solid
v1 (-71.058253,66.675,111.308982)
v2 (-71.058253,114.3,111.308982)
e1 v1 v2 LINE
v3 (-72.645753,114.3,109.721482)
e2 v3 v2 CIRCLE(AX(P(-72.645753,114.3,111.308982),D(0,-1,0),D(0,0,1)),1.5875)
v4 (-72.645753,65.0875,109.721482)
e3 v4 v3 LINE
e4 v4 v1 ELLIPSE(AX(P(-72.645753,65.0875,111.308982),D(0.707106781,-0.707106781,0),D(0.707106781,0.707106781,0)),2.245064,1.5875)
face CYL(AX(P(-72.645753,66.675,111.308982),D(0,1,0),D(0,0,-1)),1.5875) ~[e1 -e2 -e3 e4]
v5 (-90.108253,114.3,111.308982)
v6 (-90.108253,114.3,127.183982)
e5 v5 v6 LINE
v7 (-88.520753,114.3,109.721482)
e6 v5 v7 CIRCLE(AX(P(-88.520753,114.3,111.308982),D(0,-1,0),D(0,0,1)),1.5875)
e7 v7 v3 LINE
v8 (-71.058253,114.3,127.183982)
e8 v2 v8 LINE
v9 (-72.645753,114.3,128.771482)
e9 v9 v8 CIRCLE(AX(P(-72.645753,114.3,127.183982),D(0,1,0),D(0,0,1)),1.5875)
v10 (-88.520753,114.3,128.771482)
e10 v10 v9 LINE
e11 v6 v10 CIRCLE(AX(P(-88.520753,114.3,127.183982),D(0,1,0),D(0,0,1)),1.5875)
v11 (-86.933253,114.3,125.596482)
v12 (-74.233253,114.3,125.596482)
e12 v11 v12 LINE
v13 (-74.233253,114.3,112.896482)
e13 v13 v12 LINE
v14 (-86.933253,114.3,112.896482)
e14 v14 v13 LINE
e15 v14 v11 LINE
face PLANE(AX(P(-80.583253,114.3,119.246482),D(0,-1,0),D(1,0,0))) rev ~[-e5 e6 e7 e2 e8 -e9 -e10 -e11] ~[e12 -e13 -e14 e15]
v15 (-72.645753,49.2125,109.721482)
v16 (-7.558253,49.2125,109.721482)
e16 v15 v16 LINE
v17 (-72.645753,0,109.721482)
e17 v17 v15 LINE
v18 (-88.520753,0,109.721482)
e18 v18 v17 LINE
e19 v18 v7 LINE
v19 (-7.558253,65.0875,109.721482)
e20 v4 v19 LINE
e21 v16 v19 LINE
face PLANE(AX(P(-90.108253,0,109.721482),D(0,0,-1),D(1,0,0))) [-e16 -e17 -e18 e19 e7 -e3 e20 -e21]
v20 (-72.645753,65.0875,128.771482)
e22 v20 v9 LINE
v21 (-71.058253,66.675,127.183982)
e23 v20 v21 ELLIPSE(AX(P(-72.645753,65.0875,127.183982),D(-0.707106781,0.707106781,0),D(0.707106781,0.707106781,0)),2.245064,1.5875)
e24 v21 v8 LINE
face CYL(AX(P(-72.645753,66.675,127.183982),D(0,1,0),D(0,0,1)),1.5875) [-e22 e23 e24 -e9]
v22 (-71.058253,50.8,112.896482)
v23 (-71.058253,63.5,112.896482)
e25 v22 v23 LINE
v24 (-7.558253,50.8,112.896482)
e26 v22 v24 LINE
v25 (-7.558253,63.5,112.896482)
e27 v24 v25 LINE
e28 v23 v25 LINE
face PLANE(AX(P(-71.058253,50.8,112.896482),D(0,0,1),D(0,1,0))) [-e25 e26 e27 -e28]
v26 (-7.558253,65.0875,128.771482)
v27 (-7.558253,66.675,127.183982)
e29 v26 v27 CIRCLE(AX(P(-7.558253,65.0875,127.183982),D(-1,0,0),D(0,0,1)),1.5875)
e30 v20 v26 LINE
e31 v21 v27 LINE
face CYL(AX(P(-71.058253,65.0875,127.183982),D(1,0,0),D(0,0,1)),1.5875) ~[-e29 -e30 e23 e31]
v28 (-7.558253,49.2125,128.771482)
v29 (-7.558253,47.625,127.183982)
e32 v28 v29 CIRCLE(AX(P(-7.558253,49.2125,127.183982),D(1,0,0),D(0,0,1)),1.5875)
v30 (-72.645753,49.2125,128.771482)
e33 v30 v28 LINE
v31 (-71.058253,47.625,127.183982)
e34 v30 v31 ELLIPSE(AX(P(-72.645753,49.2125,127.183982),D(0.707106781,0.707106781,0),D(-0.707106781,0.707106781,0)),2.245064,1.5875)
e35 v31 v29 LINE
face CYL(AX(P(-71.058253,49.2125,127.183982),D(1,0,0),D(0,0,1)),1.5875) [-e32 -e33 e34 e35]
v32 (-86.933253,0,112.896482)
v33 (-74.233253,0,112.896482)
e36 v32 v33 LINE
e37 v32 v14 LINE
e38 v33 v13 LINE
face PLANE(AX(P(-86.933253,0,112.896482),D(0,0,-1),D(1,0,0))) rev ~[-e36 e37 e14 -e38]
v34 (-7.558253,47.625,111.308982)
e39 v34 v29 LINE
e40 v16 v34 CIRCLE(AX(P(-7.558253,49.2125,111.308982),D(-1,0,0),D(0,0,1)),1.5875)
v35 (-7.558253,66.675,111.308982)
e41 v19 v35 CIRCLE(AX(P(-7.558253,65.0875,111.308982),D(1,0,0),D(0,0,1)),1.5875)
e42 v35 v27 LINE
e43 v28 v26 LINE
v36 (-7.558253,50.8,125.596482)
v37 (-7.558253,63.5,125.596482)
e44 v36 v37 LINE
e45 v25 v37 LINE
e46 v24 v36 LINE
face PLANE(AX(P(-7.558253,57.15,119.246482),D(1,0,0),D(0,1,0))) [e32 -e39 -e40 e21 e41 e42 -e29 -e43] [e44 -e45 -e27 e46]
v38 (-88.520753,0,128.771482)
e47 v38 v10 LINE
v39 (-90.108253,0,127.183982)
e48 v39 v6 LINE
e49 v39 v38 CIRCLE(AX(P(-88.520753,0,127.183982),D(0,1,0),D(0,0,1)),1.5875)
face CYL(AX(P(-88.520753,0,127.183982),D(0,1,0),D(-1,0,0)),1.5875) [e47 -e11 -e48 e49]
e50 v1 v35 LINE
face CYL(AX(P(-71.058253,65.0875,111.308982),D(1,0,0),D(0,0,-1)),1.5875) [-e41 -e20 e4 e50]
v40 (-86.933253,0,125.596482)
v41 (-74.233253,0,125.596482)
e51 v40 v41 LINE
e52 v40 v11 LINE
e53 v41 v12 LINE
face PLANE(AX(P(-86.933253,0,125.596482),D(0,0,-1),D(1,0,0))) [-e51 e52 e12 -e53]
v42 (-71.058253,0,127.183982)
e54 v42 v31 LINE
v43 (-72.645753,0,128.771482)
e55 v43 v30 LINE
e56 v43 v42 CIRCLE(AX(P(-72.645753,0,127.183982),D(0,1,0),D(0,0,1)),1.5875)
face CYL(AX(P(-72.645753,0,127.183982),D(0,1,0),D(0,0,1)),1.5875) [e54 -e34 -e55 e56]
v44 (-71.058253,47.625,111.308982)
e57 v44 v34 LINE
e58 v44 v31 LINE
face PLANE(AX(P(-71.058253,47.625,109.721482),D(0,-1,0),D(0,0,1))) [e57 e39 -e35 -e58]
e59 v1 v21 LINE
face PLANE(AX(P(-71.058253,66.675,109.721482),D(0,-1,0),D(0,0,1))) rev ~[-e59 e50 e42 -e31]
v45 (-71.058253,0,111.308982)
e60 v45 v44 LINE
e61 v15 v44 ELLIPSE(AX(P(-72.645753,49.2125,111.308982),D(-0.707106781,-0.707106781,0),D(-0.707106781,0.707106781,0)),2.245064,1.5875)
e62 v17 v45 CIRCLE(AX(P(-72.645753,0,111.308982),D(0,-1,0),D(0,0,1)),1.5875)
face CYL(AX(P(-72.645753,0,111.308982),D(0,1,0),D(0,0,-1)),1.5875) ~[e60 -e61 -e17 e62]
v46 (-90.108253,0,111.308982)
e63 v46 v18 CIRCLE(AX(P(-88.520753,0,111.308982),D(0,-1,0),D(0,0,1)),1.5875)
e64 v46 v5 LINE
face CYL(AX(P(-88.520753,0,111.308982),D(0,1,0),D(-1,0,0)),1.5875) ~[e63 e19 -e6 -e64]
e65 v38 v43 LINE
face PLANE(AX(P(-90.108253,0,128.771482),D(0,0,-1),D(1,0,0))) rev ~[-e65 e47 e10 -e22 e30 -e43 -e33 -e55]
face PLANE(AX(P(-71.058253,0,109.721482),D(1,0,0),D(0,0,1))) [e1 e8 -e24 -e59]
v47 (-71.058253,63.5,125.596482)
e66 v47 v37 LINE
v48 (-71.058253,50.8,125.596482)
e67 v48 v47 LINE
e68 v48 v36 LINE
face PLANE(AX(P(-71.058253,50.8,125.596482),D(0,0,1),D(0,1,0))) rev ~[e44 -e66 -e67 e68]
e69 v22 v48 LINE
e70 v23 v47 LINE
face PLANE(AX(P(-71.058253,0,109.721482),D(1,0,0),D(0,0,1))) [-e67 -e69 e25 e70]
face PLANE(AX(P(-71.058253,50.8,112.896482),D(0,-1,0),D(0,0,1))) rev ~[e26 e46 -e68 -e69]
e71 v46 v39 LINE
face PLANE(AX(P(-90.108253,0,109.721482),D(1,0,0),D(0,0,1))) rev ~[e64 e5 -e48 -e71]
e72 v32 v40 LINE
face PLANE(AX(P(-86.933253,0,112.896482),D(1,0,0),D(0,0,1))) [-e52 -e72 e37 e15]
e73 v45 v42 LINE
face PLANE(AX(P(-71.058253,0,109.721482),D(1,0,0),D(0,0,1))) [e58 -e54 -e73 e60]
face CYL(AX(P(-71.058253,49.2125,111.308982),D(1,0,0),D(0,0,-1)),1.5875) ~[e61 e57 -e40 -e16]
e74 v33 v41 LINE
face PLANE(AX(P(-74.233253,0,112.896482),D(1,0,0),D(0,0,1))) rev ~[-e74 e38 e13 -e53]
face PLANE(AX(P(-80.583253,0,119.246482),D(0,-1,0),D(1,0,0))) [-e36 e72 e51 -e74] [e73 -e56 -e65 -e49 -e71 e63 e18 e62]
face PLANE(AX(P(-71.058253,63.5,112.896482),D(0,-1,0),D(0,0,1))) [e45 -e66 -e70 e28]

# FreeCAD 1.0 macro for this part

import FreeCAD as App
import Part
import Sketcher

V = App.Vector
Q = App.Units.Quantity


def edges_at(feature, points):
    """Names of the edges that pass closest to the given points."""
    edges = feature.Shape.Edges
    near = lambda p: min(range(len(edges)), key=lambda i: edges[i].distToShape(Part.Vertex(*p))[0])
    return sorted({f"Edge{near(p) + 1}" for p in points})


def add_polygon(sketch, points):
    """Adds a closed chain of lines whose ends are joined by coincident constraints."""
    first, n = sketch.GeometryCount, len(points)
    for a, b in zip(points, points[1:] + points[:1]):
        sketch.addGeometry(Part.LineSegment(App.Vector(*a, 0), App.Vector(*b, 0)), False)
    for i in range(n):
        sketch.addConstraint(Sketcher.Constraint("Coincident", first + i, 2, first + (i + 1) % n, 1))

doc = App.newDocument("Part")
body = doc.addObject("PartDesign::Body", "Body")

sketch1 = body.newObject("Sketcher::SketchObject", "Sketch")
sketch1.AttachmentSupport = (doc.getObject("XZ_Plane"), [""])
sketch1.MapMode = "FlatFace"
add_polygon(sketch1, [(-90, 129), (-90, 110), (-71, 110), (-71, 129)])
add_polygon(sketch1, [(-74, 113), (-87, 113), (-87, 126), (-74, 126)])
sketch1.addConstraint(Sketcher.Constraint("Vertical", 0))
sketch1.addConstraint(Sketcher.Constraint("Horizontal", 1))
sketch1.addConstraint(Sketcher.Constraint("Vertical", 2))
sketch1.addConstraint(Sketcher.Constraint("Horizontal", 3))
sketch1.addConstraint(Sketcher.Constraint("Horizontal", 4))
sketch1.addConstraint(Sketcher.Constraint("Vertical", 5))
sketch1.addConstraint(Sketcher.Constraint("Horizontal", 6))
sketch1.addConstraint(Sketcher.Constraint("Vertical", 7))
sketch1.addConstraint(Sketcher.Constraint("Equal", 3, 0))
sketch1.addConstraint(Sketcher.Constraint("Equal", 6, 5))
sketch1.addConstraint(Sketcher.Constraint("DistanceX", 4, 2, 4, 1, Q("0.5 in")))
sketch1.addConstraint(Sketcher.Constraint("DistanceX", 1, 1, 1, 2, Q("0.75 in")))
sketch1.addConstraint(Sketcher.Constraint("DistanceX", 0, 2, 4, 2, Q("0.125 in")))
sketch1.addConstraint(Sketcher.Constraint("DistanceY", 0, 2, 4, 2, Q("0.125 in")))
sketch1.addConstraint(Sketcher.Constraint("DistanceY", -1, 1, 0, 2, Q("109.721482 mm")))
sketch1.addConstraint(Sketcher.Constraint("DistanceX", 0, 2, -1, 1, Q("90.108253 mm")))
pad1 = body.newObject("PartDesign::Pad", "Pad")
pad1.Profile = sketch1
pad1.Length = Q("4.5 in")
pad1.Reversed = True

sketch2 = body.newObject("Sketcher::SketchObject", "Sketch001")
sketch2.AttachmentSupport = (doc.getObject("YZ_Plane"), [""])
sketch2.MapMode = "FlatFace"
sketch2.AttachmentOffset = App.Placement(V(0, 0, -71.058253), App.Rotation())
add_polygon(sketch2, [(48, 129), (48, 110), (67, 110), (67, 129)])
add_polygon(sketch2, [(64, 113), (51, 113), (51, 126), (64, 126)])
sketch2.addConstraint(Sketcher.Constraint("Vertical", 0))
sketch2.addConstraint(Sketcher.Constraint("Horizontal", 1))
sketch2.addConstraint(Sketcher.Constraint("Vertical", 2))
sketch2.addConstraint(Sketcher.Constraint("Horizontal", 3))
sketch2.addConstraint(Sketcher.Constraint("Horizontal", 4))
sketch2.addConstraint(Sketcher.Constraint("Vertical", 5))
sketch2.addConstraint(Sketcher.Constraint("Horizontal", 6))
sketch2.addConstraint(Sketcher.Constraint("Vertical", 7))
sketch2.addConstraint(Sketcher.Constraint("Equal", 3, 0))
sketch2.addConstraint(Sketcher.Constraint("Equal", 6, 5))
sketch2.addConstraint(Sketcher.Constraint("DistanceX", 4, 2, 4, 1, Q("0.5 in")))
sketch2.addConstraint(Sketcher.Constraint("DistanceX", -1, 1, 4, 2, Q("2 in")))
sketch2.addConstraint(Sketcher.Constraint("DistanceX", 1, 1, 1, 2, Q("0.75 in")))
sketch2.addConstraint(Sketcher.Constraint("DistanceX", -1, 1, 0, 2, Q("1.875 in")))
sketch2.addConstraint(Sketcher.Constraint("DistanceY", 0, 2, 4, 2, Q("0.125 in")))
sketch2.addConstraint(Sketcher.Constraint("DistanceY", -1, 1, 0, 2, Q("109.721482 mm")))
pad2 = body.newObject("PartDesign::Pad", "Pad001")
pad2.Profile = sketch2
pad2.Length = Q("2.5 in")
doc.recompute()

fillet = body.newObject("PartDesign::Fillet", "Fillet")
fillet.Base = (pad2, edges_at(pad2, [
    (-71.058, 23.812, 128.771),
    (-39.308, 47.625, 128.771),
    (-90.108, 57.15, 128.771),
    (-71.058, 23.812, 109.721),
    (-39.308, 47.625, 109.721),
    (-71.058, 90.487, 128.771),
    (-71.058, 90.487, 109.721),
    (-39.308, 66.675, 109.721),
    (-39.308, 66.675, 128.771),
    (-90.108, 57.15, 109.721),
]))
fillet.Radius = Q("0.0625 in")

doc.recompute()
